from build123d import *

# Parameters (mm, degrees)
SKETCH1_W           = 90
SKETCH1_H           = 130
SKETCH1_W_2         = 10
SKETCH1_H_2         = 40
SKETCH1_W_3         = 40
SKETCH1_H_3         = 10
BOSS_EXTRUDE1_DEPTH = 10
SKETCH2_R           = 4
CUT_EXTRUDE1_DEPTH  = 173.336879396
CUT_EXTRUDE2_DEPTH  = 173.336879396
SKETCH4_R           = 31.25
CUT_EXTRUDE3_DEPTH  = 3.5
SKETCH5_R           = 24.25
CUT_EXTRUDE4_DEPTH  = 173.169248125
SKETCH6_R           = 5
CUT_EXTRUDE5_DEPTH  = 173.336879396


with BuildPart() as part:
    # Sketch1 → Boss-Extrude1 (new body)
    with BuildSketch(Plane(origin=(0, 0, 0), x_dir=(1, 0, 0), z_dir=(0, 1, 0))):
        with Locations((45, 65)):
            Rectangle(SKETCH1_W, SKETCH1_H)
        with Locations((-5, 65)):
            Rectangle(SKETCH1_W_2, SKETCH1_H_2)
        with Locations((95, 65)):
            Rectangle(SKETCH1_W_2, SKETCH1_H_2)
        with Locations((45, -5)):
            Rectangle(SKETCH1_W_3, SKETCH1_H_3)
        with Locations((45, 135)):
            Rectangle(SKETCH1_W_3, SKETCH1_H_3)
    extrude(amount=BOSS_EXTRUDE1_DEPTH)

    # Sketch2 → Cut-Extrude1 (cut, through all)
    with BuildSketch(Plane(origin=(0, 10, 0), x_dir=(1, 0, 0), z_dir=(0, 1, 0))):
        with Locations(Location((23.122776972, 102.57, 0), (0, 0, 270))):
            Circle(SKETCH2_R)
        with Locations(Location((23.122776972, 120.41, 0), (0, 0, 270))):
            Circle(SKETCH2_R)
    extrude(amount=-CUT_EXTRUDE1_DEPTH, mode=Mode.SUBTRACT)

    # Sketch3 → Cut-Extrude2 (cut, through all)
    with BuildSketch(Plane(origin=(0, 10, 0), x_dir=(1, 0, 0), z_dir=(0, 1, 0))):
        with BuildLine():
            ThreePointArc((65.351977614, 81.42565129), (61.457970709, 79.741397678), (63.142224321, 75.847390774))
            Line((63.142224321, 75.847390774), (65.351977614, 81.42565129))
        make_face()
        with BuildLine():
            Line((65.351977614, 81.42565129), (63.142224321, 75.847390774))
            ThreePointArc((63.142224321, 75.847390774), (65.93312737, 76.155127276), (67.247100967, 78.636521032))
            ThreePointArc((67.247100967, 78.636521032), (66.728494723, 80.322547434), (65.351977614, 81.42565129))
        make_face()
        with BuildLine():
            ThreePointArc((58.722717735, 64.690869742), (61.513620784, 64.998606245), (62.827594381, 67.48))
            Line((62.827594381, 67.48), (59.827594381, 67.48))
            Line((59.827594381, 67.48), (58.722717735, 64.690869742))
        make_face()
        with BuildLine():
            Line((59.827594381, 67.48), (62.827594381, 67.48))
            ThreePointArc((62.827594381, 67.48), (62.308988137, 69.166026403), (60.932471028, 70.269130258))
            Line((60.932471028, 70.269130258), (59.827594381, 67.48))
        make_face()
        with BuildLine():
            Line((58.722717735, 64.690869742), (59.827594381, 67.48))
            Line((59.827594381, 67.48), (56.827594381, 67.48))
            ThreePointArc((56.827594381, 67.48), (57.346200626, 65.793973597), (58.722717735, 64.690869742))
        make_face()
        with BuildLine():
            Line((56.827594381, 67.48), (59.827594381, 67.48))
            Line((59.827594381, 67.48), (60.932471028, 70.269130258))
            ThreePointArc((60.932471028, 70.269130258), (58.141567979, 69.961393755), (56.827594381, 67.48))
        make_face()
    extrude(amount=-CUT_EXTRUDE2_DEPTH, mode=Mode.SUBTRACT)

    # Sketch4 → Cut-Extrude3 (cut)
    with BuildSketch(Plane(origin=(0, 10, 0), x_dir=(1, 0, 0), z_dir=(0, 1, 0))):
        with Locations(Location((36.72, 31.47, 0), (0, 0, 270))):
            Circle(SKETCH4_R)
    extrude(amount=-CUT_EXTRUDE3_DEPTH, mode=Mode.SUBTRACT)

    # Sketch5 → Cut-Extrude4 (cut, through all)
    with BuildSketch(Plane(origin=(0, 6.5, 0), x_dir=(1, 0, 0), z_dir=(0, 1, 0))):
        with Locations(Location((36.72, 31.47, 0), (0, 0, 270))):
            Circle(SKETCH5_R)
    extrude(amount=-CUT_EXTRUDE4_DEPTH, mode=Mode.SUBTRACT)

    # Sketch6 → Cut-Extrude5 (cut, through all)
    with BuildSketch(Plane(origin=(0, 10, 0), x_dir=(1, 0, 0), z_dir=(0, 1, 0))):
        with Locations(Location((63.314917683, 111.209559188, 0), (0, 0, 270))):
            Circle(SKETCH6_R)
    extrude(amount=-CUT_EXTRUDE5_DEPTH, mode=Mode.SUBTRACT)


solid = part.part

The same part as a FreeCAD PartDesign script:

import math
import FreeCAD as App
import Part
import Sketcher

doc = App.newDocument("Part")
params = doc.addObject("Spreadsheet::Sheet", "Params")
for row, (alias, value) in enumerate([
    ("sketch1_width", "25 mm"),
    ("sketch1_width2", "40 mm"),
    ("sketch1_width3", "10 mm"),
    ("sketch1_height", "45 mm"),
    ("pad1_length", "10 mm"),
    ("sketch2_diameter", "8 mm"),
    ("sketch3_radius", "3 mm"),
    ("sketch4_diameter", "62.5 mm"),
    ("pocket3_length", "3.5 mm"),
    ("sketch5_diameter", "48.5 mm"),
    ("sketch6_diameter", "10 mm"),
], start=1):
    params.set(f"A{row}", alias)
    params.set(f"B{row}", "=" + value)
    params.setAlias(f"B{row}", alias)

body = doc.addObject("PartDesign::Body", "Body")

sketch1 = body.newObject("Sketcher::SketchObject", "Sketch")
sketch1.AttachmentSupport = (doc.getObject("XZ_Plane"), [""])
sketch1.MapMode = "FlatFace"
sketch1.addGeometry([
    Part.LineSegment(App.Vector(0, -45, 0), App.Vector(0, 0, 0)),
    Part.LineSegment(App.Vector(0, 0, 0), App.Vector(25, 0, 0)),
    Part.LineSegment(App.Vector(25, 0, 0), App.Vector(25, 10, 0)),
    Part.LineSegment(App.Vector(25, 10, 0), App.Vector(65, 10, 0)),
    Part.LineSegment(App.Vector(65, 10, 0), App.Vector(65, 0, 0)),
    Part.LineSegment(App.Vector(65, 0, 0), App.Vector(90, 0, 0)),
    Part.LineSegment(App.Vector(90, 0, 0), App.Vector(90, -45, 0)),
    Part.LineSegment(App.Vector(90, -45, 0), App.Vector(100, -45, 0)),
    Part.LineSegment(App.Vector(100, -45, 0), App.Vector(100, -85, 0)),
    Part.LineSegment(App.Vector(100, -85, 0), App.Vector(90, -85, 0)),
    Part.LineSegment(App.Vector(90, -85, 0), App.Vector(90, -130, 0)),
    Part.LineSegment(App.Vector(90, -130, 0), App.Vector(65, -130, 0)),
    Part.LineSegment(App.Vector(65, -130, 0), App.Vector(65, -140, 0)),
    Part.LineSegment(App.Vector(65, -140, 0), App.Vector(25, -140, 0)),
    Part.LineSegment(App.Vector(25, -140, 0), App.Vector(25, -130, 0)),
    Part.LineSegment(App.Vector(25, -130, 0), App.Vector(0, -130, 0)),
    Part.LineSegment(App.Vector(0, -130, 0), App.Vector(0, -85, 0)),
    Part.LineSegment(App.Vector(0, -85, 0), App.Vector(-10, -85, 0)),
    Part.LineSegment(App.Vector(-10, -85, 0), App.Vector(-10, -45, 0)),
    Part.LineSegment(App.Vector(-10, -45, 0), App.Vector(0, -45, 0)),
], False)
sketch1.addConstraint([
    Sketcher.Constraint("Coincident", 0, 2, 1, 1),
    Sketcher.Constraint("Coincident", 1, 2, 2, 1),
    Sketcher.Constraint("Coincident", 2, 2, 3, 1),
    Sketcher.Constraint("Coincident", 3, 2, 4, 1),
    Sketcher.Constraint("Coincident", 4, 2, 5, 1),
    Sketcher.Constraint("Coincident", 5, 2, 6, 1),
    Sketcher.Constraint("Coincident", 6, 2, 7, 1),
    Sketcher.Constraint("Coincident", 7, 2, 8, 1),
    Sketcher.Constraint("Coincident", 8, 2, 9, 1),
    Sketcher.Constraint("Coincident", 9, 2, 10, 1),
    Sketcher.Constraint("Coincident", 10, 2, 11, 1),
    Sketcher.Constraint("Coincident", 11, 2, 12, 1),
    Sketcher.Constraint("Coincident", 12, 2, 13, 1),
    Sketcher.Constraint("Coincident", 13, 2, 14, 1),
    Sketcher.Constraint("Coincident", 14, 2, 15, 1),
    Sketcher.Constraint("Coincident", 15, 2, 16, 1),
    Sketcher.Constraint("Coincident", 16, 2, 17, 1),
    Sketcher.Constraint("Coincident", 17, 2, 18, 1),
    Sketcher.Constraint("Coincident", 18, 2, 19, 1),
    Sketcher.Constraint("Coincident", 19, 2, 0, 1),
    Sketcher.Constraint("Vertical", 0),
    Sketcher.Constraint("Horizontal", 1),
    Sketcher.Constraint("Vertical", 2),
    Sketcher.Constraint("Horizontal", 3),
    Sketcher.Constraint("Vertical", 4),
    Sketcher.Constraint("Horizontal", 5),
    Sketcher.Constraint("Vertical", 6),
    Sketcher.Constraint("Horizontal", 7),
    Sketcher.Constraint("Vertical", 8),
    Sketcher.Constraint("Horizontal", 9),
    Sketcher.Constraint("Vertical", 10),
    Sketcher.Constraint("Horizontal", 11),
    Sketcher.Constraint("Vertical", 12),
    Sketcher.Constraint("Horizontal", 13),
    Sketcher.Constraint("Vertical", 14),
    Sketcher.Constraint("Horizontal", 15),
    Sketcher.Constraint("Vertical", 16),
    Sketcher.Constraint("Horizontal", 17),
    Sketcher.Constraint("Vertical", 18),
    Sketcher.Constraint("Horizontal", 19),
    Sketcher.Constraint("Coincident", 0, 2, -1, 1),
    Sketcher.Constraint("PointOnObject", 4, 2, -1),
    Sketcher.Constraint("PointOnObject", 15, 2, -2),
    Sketcher.Constraint("Horizontal", 11, 2, 14, 2),
    Sketcher.Constraint("Horizontal", 9, 2, 16, 2),
    Sketcher.Constraint("Horizontal", 7, 2, 18, 2),
    Sketcher.Constraint("Vertical", 6, 2, 9, 2),
    Sketcher.Constraint("Vertical", 4, 2, 11, 2),
    Sketcher.Constraint("Vertical", 2, 2, 13, 2),
    Sketcher.Constraint("Equal", 1, 5),
    Sketcher.Constraint("Equal", 9, 17),
    Sketcher.Constraint("Equal", 19, 2),
    Sketcher.Constraint("Equal", 13, 8),
    Sketcher.Constraint("Equal", 6, 10),
    Sketcher.Constraint("Equal", 4, 12),
    Sketcher.Constraint("DistanceX", 1, 1, 1, 2, 25.0),
    Sketcher.Constraint("DistanceX", 3, 1, 3, 2, 40.0),
    Sketcher.Constraint("DistanceX", 7, 1, 7, 2, 10.0),
    Sketcher.Constraint("DistanceY", 0, 1, 0, 2, 45.0),
])
sketch1.setExpression("Constraints[55]", "Params.sketch1_width")
sketch1.setExpression("Constraints[56]", "Params.sketch1_width2")
sketch1.setExpression("Constraints[57]", "Params.sketch1_width3")
sketch1.setExpression("Constraints[58]", "Params.sketch1_height")
pad1 = body.newObject("PartDesign::Pad", "Pad")
pad1.Profile = sketch1
pad1.setExpression("Length", "Params.pad1_length")
pad1.Reversed = True

sketch2 = body.newObject("Sketcher::SketchObject", "Sketch001")
sketch2.AttachmentSupport = (doc.getObject("XZ_Plane"), [""])
sketch2.MapMode = "FlatFace"
sketch2.AttachmentOffset = App.Placement(App.Vector(0, 0, -10), App.Rotation())
sketch2.addGeometry([
    Part.Circle(App.Vector(23.122777, -102.57, 0), App.Vector(0, 0, 1), 4),
    Part.Circle(App.Vector(23.122777, -120.41, 0), App.Vector(0, 0, 1), 4),
], False)
sketch2.addConstraint([
    Sketcher.Constraint("Equal", 0, 1),
    Sketcher.Constraint("Vertical", 0, 3, 1, 3),
    Sketcher.Constraint("Diameter", 0, 8.0),
    Sketcher.Constraint("DistanceY", 0, 3, -1, 1, 102.57),
    Sketcher.Constraint("DistanceY", 1, 3, -1, 1, 120.41),
    Sketcher.Constraint("DistanceX", -1, 1, 0, 3, 23.122777),
])
sketch2.setExpression("Constraints[2]", "Params.sketch2_diameter")
pocket1 = body.newObject("PartDesign::Pocket", "Pocket")
pocket1.Profile = sketch2
pocket1.Type = "ThroughAll"
pocket1.Reversed = True

sketch3 = body.newObject("Sketcher::SketchObject", "Sketch002")
sketch3.AttachmentSupport = (doc.getObject("XZ_Plane"), [""])
sketch3.MapMode = "FlatFace"
sketch3.AttachmentOffset = App.Placement(App.Vector(0, 0, -10), App.Rotation())
sketch3.addGeometry([
    Part.ArcOfCircle(Part.Circle(App.Vector(64.247101, -78.636521, 0), App.Vector(0, 0, 1), 3), math.radians(111.610332), math.radians(291.610332)),
    Part.ArcOfCircle(Part.Circle(App.Vector(64.247101, -78.636521, 0), App.Vector(0, 0, 1), 3), math.radians(0), math.radians(111.610332)),
    Part.ArcOfCircle(Part.Circle(App.Vector(64.247101, -78.636521, 0), App.Vector(0, 0, 1), 3), math.radians(-68.389668), math.radians(0)),
    Part.ArcOfCircle(Part.Circle(App.Vector(59.827594, -67.48, 0), App.Vector(0, 0, 1), 3), math.radians(-68.389668), math.radians(0)),
    Part.ArcOfCircle(Part.Circle(App.Vector(59.827594, -67.48, 0), App.Vector(0, 0, 1), 3), math.radians(-180), math.radians(-68.389668)),
    Part.ArcOfCircle(Part.Circle(App.Vector(59.827594, -67.48, 0), App.Vector(0, 0, 1), 3), math.radians(111.610332), math.radians(180)),
    Part.ArcOfCircle(Part.Circle(App.Vector(59.827594, -67.48, 0), App.Vector(0, 0, 1), 3), math.radians(0), math.radians(111.610332)),
], False)
sketch3.addConstraint([
    Sketcher.Constraint("Tangent", 0, 1, 1, 2),
    Sketcher.Constraint("Tangent", 1, 1, 2, 2),
    Sketcher.Constraint("Tangent", 2, 1, 0, 2),
    Sketcher.Constraint("Tangent", 3, 1, 4, 2),
    Sketcher.Constraint("Tangent", 4, 1, 5, 2),
    Sketcher.Constraint("Tangent", 5, 1, 6, 2),
    Sketcher.Constraint("Tangent", 6, 1, 3, 2),
    Sketcher.Constraint("Equal", 2, 3),
    Sketcher.Constraint("Equal", 3, 4),
    Sketcher.Constraint("Horizontal", 2, 3, 1, 1),
    Sketcher.Constraint("Horizontal", 6, 3, 4, 1),
    Sketcher.Constraint("Horizontal", 4, 1, 6, 1),
    Sketcher.Constraint("Radius", 0, 3.0),
    Sketcher.Constraint("DistanceY", 3, 3, -1, 1, 67.48),
    Sketcher.Constraint("DistanceX", -1, 1, 0, 3, 64.247101),
    Sketcher.Constraint("DistanceY", 0, 3, -1, 1, 78.636521),
    Sketcher.Constraint("DistanceY", 0, 1, -1, 1, 75.847391),
    Sketcher.Constraint("DistanceY", 2, 1, -1, 1, 81.425651),
    Sketcher.Constraint("DistanceX", -1, 1, 3, 1, 60.932471),
    Sketcher.Constraint("DistanceY", 3, 1, -1, 1, 70.26913),
    Sketcher.Constraint("DistanceY", 5, 1, -1, 1, 64.69087),
])
sketch3.setExpression("Constraints[12]", "Params.sketch3_radius")
pocket2 = body.newObject("PartDesign::Pocket", "Pocket001")
pocket2.Profile = sketch3
pocket2.Type = "ThroughAll"
pocket2.Reversed = True

sketch4 = body.newObject("Sketcher::SketchObject", "Sketch003")
sketch4.AttachmentSupport = (doc.getObject("XZ_Plane"), [""])
sketch4.MapMode = "FlatFace"
sketch4.AttachmentOffset = App.Placement(App.Vector(0, 0, -10), App.Rotation())
sketch4.addGeometry(Part.Circle(App.Vector(36.72, -31.47, 0), App.Vector(0, 0, 1), 31.25), False)
sketch4.addConstraint([
    Sketcher.Constraint("Diameter", 0, 62.5),
    Sketcher.Constraint("DistanceX", -1, 1, 0, 3, 36.72),
    Sketcher.Constraint("DistanceY", 0, 3, -1, 1, 31.47),
])
sketch4.setExpression("Constraints[0]", "Params.sketch4_diameter")
pocket3 = body.newObject("PartDesign::Pocket", "Pocket002")
pocket3.Profile = sketch4
pocket3.setExpression("Length", "Params.pocket3_length")
pocket3.Reversed = True

sketch5 = body.newObject("Sketcher::SketchObject", "Sketch004")
sketch5.AttachmentSupport = (doc.getObject("XZ_Plane"), [""])
sketch5.MapMode = "FlatFace"
sketch5.AttachmentOffset = App.Placement(App.Vector(0, 0, -6.5), App.Rotation())
sketch5.addGeometry(Part.Circle(App.Vector(36.72, -31.47, 0), App.Vector(0, 0, 1), 24.25), False)
sketch5.addConstraint([
    Sketcher.Constraint("Diameter", 0, 48.5),
    Sketcher.Constraint("DistanceX", -1, 1, 0, 3, 36.72),
    Sketcher.Constraint("DistanceY", 0, 3, -1, 1, 31.47),
])
sketch5.setExpression("Constraints[0]", "Params.sketch5_diameter")
pocket4 = body.newObject("PartDesign::Pocket", "Pocket003")
pocket4.Profile = sketch5
pocket4.Type = "ThroughAll"
pocket4.Reversed = True

sketch6 = body.newObject("Sketcher::SketchObject", "Sketch005")
sketch6.AttachmentSupport = (doc.getObject("XZ_Plane"), [""])
sketch6.MapMode = "FlatFace"
sketch6.AttachmentOffset = App.Placement(App.Vector(0, 0, -10), App.Rotation())
sketch6.addGeometry(Part.Circle(App.Vector(63.314918, -111.209559, 0), App.Vector(0, 0, 1), 5), False)
sketch6.addConstraint([
    Sketcher.Constraint("Diameter", 0, 10.0),
    Sketcher.Constraint("DistanceY", 0, 3, -1, 1, 111.209559),
    Sketcher.Constraint("DistanceX", -1, 1, 0, 3, 63.314918),
])
sketch6.setExpression("Constraints[0]", "Params.sketch6_diameter")
pocket5 = body.newObject("PartDesign::Pocket", "Pocket004")
pocket5.Profile = sketch6
pocket5.Type = "ThroughAll"
pocket5.Reversed = True

doc.recompute()
